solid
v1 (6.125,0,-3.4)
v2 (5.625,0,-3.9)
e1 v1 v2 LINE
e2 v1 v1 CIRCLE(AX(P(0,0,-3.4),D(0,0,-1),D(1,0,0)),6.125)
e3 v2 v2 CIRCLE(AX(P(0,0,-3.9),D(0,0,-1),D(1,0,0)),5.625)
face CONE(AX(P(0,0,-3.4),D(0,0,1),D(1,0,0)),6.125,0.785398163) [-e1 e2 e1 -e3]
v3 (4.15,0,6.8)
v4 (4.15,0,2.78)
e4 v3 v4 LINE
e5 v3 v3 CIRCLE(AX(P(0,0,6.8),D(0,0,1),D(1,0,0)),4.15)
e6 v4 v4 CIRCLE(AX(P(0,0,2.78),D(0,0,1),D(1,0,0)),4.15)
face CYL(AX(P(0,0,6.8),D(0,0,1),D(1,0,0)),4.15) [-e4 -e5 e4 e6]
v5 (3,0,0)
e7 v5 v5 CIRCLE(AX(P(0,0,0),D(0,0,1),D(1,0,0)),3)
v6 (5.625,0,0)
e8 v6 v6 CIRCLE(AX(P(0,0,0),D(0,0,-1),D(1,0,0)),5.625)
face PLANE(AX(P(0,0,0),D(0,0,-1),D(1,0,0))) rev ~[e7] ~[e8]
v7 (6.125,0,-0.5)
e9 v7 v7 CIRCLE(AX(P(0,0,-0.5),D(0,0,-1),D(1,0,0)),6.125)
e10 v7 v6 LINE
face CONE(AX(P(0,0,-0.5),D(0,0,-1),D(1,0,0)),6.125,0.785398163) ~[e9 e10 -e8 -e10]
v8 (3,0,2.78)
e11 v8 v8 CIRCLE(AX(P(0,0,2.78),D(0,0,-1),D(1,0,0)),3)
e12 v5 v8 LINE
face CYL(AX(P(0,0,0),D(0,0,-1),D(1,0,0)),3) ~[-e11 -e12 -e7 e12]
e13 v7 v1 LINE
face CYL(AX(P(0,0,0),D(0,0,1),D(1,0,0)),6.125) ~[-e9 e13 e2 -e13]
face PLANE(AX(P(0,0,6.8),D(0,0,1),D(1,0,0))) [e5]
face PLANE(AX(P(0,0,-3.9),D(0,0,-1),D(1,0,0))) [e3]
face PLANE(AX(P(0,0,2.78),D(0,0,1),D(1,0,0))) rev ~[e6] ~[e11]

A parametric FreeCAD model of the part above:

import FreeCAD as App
import Part
import Sketcher


def edges_at(feature, points):
    """Names of the edges that pass closest to the given points."""
    edges = feature.Shape.Edges
    near = lambda p: min(range(len(edges)), key=lambda i: edges[i].distToShape(Part.Vertex(*p))[0])
    return sorted({f"Edge{near(p) + 1}" for p in points})

doc = App.newDocument("Part")
body = doc.addObject("PartDesign::Body", "Body")

# Sketch on XY plane
sketch1 = doc.addObject("Sketcher::SketchObject", "Sketch")
body.addObject(sketch1)
sketch1.AttachmentSupport = (doc.XY_Plane, [""])
sketch1.MapMode = "FlatFace"
sketch1.addGeometry(Part.Circle(App.Vector(0, 0, 0), App.Vector(0, 0, 1), 3), False)
sketch1.addConstraint(Sketcher.Constraint("Coincident", 0, 3, -1, 1))
sketch1.addConstraint(Sketcher.Constraint("Diameter", 0, 6.0))
pad1 = doc.addObject("PartDesign::Pad", "Pad")
body.addObject(pad1)
pad1.Profile = sketch1
pad1.Length = 6.8

# Sketch on XY plane
sketch2 = doc.addObject("Sketcher::SketchObject", "Sketch001")
body.addObject(sketch2)
sketch2.AttachmentSupport = (doc.XY_Plane, [""])
sketch2.MapMode = "FlatFace"
sketch2.addGeometry(Part.Circle(App.Vector(0, 0, 0), App.Vector(0, 0, 1), 6), False)
sketch2.addConstraint(Sketcher.Constraint("Coincident", 0, 3, -1, 1))
sketch2.addConstraint(Sketcher.Constraint("Diameter", 0, 12.25))
pad2 = doc.addObject("PartDesign::Pad", "Pad001")
body.addObject(pad2)
pad2.Profile = sketch2
pad2.Length = 3.9
pad2.Reversed = True
doc.recompute()

chamfer = doc.addObject("PartDesign::Chamfer", "Chamfer")
body.addObject(chamfer)
chamfer.Base = (pad2, edges_at(pad2, [(-6.125, 0, 0), (-6.125, 0, -3.9)]))
chamfer.Size = 0.5

# Sketch on XY plane
sketch3 = doc.addObject("Sketcher::SketchObject", "Sketch002")
body.addObject(sketch3)
sketch3.AttachmentSupport = (doc.XY_Plane, [""])
sketch3.MapMode = "FlatFace"
sketch3.AttachmentOffset = App.Placement(App.Vector(0, 0, 6.8), App.Rotation())
sketch3.addGeometry(Part.Circle(App.Vector(0, 0, 0), App.Vector(0, 0, 1), 4.2), False)
sketch3.addConstraint(Sketcher.Constraint("Coincident", 0, 3, -1, 1))
sketch3.addConstraint(Sketcher.Constraint("Diameter", 0, 8.3))
pad3 = doc.addObject("PartDesign::Pad", "Pad002")
body.addObject(pad3)
pad3.Profile = sketch3
pad3.Length = 4.02
pad3.Reversed = True

doc.recompute()
